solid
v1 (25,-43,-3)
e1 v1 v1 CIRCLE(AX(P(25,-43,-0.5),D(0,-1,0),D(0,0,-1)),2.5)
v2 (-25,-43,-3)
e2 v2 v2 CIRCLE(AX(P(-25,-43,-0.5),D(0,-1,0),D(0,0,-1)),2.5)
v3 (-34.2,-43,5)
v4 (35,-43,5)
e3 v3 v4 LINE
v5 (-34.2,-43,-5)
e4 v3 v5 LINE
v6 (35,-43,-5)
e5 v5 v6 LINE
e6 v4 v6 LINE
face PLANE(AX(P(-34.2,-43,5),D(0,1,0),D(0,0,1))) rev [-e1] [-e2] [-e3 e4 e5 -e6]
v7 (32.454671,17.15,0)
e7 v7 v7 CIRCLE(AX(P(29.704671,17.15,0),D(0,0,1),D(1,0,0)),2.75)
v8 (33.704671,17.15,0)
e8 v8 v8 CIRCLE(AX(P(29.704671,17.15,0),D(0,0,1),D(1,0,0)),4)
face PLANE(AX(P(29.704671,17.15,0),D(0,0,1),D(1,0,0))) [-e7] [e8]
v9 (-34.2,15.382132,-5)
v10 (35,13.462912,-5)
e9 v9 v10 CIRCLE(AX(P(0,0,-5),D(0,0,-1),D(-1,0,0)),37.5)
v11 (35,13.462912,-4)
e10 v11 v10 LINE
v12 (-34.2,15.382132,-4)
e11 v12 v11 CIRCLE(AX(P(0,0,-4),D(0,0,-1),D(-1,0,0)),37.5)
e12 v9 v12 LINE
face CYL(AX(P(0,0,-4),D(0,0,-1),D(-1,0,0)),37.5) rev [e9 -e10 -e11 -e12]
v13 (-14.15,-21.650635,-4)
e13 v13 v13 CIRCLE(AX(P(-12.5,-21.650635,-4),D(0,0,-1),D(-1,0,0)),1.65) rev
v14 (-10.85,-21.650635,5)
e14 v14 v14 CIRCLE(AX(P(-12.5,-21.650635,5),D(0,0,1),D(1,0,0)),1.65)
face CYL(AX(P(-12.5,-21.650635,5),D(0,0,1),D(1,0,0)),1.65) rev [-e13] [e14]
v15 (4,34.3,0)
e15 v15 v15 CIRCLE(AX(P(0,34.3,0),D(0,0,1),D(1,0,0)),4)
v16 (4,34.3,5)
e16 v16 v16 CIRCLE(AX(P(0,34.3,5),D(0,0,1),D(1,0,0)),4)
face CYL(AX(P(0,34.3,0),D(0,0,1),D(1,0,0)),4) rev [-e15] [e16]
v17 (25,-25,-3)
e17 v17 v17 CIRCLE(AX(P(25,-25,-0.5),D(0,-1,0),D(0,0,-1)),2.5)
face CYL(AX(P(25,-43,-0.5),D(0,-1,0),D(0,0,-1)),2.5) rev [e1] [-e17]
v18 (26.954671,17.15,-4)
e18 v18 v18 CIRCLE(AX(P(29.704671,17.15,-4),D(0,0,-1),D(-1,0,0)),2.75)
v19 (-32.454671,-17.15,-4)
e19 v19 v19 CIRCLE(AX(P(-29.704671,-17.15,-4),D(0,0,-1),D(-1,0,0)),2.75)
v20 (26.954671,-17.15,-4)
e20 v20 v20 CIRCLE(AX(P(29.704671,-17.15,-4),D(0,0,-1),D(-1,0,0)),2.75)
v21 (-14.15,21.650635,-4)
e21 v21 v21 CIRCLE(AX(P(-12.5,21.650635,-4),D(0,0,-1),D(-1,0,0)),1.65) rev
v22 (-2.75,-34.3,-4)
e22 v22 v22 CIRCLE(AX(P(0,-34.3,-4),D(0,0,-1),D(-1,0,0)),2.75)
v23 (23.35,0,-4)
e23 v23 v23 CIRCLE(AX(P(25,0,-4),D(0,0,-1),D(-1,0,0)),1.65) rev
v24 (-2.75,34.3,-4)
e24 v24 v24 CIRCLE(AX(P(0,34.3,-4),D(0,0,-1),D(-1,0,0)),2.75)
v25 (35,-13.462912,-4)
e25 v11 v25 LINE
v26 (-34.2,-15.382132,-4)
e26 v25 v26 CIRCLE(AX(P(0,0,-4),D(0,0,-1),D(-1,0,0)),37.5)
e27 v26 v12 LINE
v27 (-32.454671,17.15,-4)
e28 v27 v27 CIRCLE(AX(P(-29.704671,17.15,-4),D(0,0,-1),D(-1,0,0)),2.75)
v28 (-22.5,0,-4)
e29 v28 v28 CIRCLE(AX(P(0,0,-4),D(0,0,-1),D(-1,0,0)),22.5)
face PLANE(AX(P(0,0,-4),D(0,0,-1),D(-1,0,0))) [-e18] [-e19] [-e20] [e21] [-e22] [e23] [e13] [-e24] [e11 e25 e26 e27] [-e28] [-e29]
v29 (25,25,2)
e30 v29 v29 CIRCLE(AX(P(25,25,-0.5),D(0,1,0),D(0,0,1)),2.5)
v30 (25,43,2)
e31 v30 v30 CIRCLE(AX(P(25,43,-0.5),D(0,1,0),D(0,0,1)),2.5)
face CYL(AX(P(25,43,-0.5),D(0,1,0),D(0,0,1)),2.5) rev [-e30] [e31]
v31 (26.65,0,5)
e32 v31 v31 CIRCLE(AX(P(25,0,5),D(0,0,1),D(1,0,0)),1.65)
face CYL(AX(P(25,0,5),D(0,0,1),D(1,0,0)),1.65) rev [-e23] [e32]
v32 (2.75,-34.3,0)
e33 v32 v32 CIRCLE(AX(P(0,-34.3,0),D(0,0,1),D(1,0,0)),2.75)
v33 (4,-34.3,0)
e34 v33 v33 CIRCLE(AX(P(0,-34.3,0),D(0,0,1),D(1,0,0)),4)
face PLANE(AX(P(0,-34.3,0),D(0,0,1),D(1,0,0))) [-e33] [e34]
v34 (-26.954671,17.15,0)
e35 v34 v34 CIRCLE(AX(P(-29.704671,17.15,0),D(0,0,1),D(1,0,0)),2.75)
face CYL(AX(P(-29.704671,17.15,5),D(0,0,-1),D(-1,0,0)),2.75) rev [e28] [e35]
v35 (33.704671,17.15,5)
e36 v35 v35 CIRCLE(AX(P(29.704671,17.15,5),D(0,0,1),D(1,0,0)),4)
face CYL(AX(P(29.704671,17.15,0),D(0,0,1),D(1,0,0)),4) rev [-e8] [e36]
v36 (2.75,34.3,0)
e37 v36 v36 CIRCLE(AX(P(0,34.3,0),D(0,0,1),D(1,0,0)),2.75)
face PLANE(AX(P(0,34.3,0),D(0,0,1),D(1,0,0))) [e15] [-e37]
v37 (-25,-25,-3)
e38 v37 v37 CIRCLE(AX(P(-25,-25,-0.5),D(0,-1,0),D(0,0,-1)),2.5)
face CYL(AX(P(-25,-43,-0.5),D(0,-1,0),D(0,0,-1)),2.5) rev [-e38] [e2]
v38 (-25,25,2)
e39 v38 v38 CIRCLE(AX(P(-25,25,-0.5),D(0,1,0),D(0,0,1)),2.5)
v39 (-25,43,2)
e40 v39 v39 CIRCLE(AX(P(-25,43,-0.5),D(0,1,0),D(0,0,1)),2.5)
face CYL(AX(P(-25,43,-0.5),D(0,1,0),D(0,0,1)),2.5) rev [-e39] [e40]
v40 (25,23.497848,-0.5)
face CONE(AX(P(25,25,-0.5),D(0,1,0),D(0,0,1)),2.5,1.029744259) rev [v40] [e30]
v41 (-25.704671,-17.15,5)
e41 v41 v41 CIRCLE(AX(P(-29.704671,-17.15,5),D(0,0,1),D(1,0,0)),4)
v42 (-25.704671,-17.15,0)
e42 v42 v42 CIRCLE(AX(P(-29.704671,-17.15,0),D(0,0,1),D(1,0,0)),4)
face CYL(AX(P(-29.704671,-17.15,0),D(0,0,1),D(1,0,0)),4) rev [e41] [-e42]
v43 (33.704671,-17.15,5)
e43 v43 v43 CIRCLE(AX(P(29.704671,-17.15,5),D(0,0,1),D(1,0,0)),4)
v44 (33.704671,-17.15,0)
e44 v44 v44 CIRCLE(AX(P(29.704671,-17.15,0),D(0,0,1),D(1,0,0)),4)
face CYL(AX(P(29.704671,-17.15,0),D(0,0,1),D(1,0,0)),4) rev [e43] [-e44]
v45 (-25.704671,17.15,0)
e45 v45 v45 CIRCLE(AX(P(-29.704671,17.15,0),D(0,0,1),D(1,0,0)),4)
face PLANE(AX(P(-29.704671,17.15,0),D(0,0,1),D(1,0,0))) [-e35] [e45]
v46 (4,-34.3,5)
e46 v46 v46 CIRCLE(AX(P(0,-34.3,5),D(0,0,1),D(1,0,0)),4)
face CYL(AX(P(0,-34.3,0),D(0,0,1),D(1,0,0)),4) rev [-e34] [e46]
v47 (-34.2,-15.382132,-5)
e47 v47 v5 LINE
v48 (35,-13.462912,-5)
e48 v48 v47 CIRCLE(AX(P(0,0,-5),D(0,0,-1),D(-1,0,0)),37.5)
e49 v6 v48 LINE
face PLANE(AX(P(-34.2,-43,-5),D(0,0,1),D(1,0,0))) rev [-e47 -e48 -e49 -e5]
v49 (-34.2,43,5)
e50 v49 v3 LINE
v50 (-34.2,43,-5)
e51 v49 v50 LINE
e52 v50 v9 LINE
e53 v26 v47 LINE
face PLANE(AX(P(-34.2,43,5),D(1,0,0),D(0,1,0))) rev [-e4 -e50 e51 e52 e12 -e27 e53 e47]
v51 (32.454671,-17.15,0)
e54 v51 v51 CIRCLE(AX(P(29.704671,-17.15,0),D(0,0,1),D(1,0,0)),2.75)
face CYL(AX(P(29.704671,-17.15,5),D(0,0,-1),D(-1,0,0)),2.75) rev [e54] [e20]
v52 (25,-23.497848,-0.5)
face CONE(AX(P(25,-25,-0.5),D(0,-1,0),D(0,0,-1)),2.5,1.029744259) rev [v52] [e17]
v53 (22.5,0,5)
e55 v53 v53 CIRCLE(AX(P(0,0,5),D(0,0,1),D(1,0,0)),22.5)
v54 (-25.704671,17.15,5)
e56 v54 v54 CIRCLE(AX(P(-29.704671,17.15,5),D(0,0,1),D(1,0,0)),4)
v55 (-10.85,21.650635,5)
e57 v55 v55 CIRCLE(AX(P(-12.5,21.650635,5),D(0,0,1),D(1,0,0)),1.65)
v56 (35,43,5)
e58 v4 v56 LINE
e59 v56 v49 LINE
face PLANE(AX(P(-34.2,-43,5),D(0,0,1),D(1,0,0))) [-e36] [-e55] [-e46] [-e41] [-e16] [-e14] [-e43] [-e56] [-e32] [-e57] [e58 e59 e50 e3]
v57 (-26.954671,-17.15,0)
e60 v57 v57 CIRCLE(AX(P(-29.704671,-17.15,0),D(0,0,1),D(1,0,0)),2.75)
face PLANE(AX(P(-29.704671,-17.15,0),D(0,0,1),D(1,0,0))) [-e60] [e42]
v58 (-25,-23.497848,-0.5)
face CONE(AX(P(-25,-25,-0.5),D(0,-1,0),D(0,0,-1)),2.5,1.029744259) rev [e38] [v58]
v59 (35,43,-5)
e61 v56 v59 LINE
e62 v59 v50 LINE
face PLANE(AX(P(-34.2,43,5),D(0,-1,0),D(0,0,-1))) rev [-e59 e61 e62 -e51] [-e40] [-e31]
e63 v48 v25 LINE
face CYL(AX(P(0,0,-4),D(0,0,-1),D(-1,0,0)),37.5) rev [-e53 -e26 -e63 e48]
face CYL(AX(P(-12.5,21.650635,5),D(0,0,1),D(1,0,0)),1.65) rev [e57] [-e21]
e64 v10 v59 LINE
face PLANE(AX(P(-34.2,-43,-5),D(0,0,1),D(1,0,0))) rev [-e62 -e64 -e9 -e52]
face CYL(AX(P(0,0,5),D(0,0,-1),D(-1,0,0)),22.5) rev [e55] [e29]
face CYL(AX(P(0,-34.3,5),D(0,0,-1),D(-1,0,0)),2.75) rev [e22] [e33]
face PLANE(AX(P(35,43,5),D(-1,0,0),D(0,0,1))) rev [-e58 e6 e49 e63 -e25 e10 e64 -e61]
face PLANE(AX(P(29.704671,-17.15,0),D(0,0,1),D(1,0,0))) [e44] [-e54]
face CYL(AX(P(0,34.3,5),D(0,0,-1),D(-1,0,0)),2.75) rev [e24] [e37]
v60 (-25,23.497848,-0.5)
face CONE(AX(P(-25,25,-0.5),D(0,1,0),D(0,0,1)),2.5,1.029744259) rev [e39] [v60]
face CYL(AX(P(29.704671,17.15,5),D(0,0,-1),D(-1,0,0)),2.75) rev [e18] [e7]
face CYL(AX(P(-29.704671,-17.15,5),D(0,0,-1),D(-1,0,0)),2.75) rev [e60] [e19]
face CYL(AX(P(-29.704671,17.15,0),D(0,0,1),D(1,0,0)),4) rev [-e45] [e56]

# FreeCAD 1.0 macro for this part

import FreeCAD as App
import Part
import Sketcher

doc = App.newDocument("Part")
params = doc.addObject("Spreadsheet::Sheet", "Params")
for row, (alias, value) in enumerate([
    ("sketch1_diameter", "45 mm"),
    ("sketch1_diameter2", "5.5 mm"),
    ("sketch1_height", "86 mm"),
    ("sketch1_width", "69.2 mm"),
    ("pad1_length", "10 mm"),
    ("sketch2_diameter", "8 mm"),
    ("pocket1_length", "5 mm"),
    ("sketch3_diameter", "3.3 mm"),
    ("hole_diameter", "3.3 mm"),
    ("sketch4_diameter", "5 mm"),
    ("hole2_diameter", "5 mm"),
    ("hole2_depth", "18 mm"),
    ("sketch5_diameter", "5 mm"),
    ("hole3_diameter", "5 mm"),
    ("hole3_depth", "18 mm"),
    ("sketch6_diameter", "75 mm"),
    ("pocket2_length", "1 mm"),
], start=1):
    params.set(f"A{row}", alias)
    params.set(f"B{row}", "=" + value)
    params.setAlias(f"B{row}", alias)

body = doc.addObject("PartDesign::Body", "Body")

sketch1 = body.newObject("Sketcher::SketchObject", "Sketch")
sketch1.AttachmentSupport = (doc.getObject("XY_Plane"), [""])
sketch1.MapMode = "FlatFace"
sketch1.addGeometry([
    Part.LineSegment(App.Vector(-34.2, 43, 0), App.Vector(-34.2, -43, 0)),
    Part.LineSegment(App.Vector(-34.2, -43, 0), App.Vector(35, -43, 0)),
    Part.LineSegment(App.Vector(35, -43, 0), App.Vector(35, 43, 0)),
    Part.LineSegment(App.Vector(35, 43, 0), App.Vector(-34.2, 43, 0)),
    Part.Circle(App.Vector(-29.7, -17.1, 0), App.Vector(0, 0, 1), 2.8),
    Part.Circle(App.Vector(0, -34.3, 0), App.Vector(0, 0, 1), 2.8),
    Part.Circle(App.Vector(29.7, -17.1, 0), App.Vector(0, 0, 1), 2.8),
    Part.Circle(App.Vector(-29.7, 17.1, 0), App.Vector(0, 0, 1), 2.8),
    Part.Circle(App.Vector(0, 0, 0), App.Vector(0, 0, 1), 22.5),
    Part.Circle(App.Vector(29.7, 17.1, 0), App.Vector(0, 0, 1), 2.8),
    Part.Circle(App.Vector(0, 34.3, 0), App.Vector(0, 0, 1), 2.8),
], False)
sketch1.addConstraint([
    Sketcher.Constraint("Coincident", 0, 2, 1, 1),
    Sketcher.Constraint("Coincident", 1, 2, 2, 1),
    Sketcher.Constraint("Coincident", 2, 2, 3, 1),
    Sketcher.Constraint("Coincident", 3, 2, 0, 1),
    Sketcher.Constraint("Vertical", 0),
    Sketcher.Constraint("Horizontal", 1),
    Sketcher.Constraint("Vertical", 2),
    Sketcher.Constraint("Horizontal", 3),
    Sketcher.Constraint("Coincident", 8, 3, -1, 1),
    Sketcher.Constraint("Equal", 4, 5),
    Sketcher.Constraint("Equal", 5, 6),
    Sketcher.Constraint("Equal", 6, 7),
    Sketcher.Constraint("Equal", 7, 9),
    Sketcher.Constraint("Equal", 9, 10),
    Sketcher.Constraint("Symmetric", 6, 3, 7, 3, -1, 1),
    Sketcher.Constraint("Symmetric", 4, 3, 9, 3, -1, 1),
    Sketcher.Constraint("Symmetric", 5, 3, 10, 3, -1, 1),
    Sketcher.Constraint("Symmetric", 4, 3, 6, 3, -2),
    Sketcher.Constraint("PointOnObject", 5, 3, -2),
    Sketcher.Constraint("Diameter", 8, 45.0),
    Sketcher.Constraint("Diameter", 4, 5.5),
    Sketcher.Constraint("DistanceY", 0, 2, 0, 1, 86.0),
    Sketcher.Constraint("DistanceX", 1, 1, 1, 2, 69.2),
    Sketcher.Constraint("DistanceY", 0, 2, -1, 1, 43.0),
    Sketcher.Constraint("DistanceX", -1, 1, 1, 2, 35.0),
    Sketcher.Constraint("DistanceY", 5, 3, -1, 1, 34.3),
    Sketcher.Constraint("DistanceY", 4, 3, 7, 3, 34.3),
    Sketcher.Constraint("DistanceX", 4, 3, -1, 1, 29.704671),
])
sketch1.setExpression("Constraints[19]", "Params.sketch1_diameter")
sketch1.setExpression("Constraints[20]", "Params.sketch1_diameter2")
sketch1.setExpression("Constraints[21]", "Params.sketch1_height")
sketch1.setExpression("Constraints[22]", "Params.sketch1_width")
pad1 = body.newObject("PartDesign::Pad", "Pad")
pad1.Profile = sketch1
pad1.setExpression("Length", "Params.pad1_length")
pad1.Midplane = True

sketch2 = body.newObject("Sketcher::SketchObject", "Sketch001")
sketch2.AttachmentSupport = (doc.getObject("XY_Plane"), [""])
sketch2.MapMode = "FlatFace"
sketch2.AttachmentOffset = App.Placement(App.Vector(0, 0, 5), App.Rotation())
sketch2.addGeometry([
    Part.Circle(App.Vector(-29.7, 17.1, 0), App.Vector(0, 0, 1), 4),
    Part.Circle(App.Vector(0, 34.3, 0), App.Vector(0, 0, 1), 4),
    Part.Circle(App.Vector(29.7, 17.1, 0), App.Vector(0, 0, 1), 4),
    Part.Circle(App.Vector(29.7, -17.1, 0), App.Vector(0, 0, 1), 4),
    Part.Circle(App.Vector(0, -34.3, 0), App.Vector(0, 0, 1), 4),
    Part.Circle(App.Vector(-29.7, -17.1, 0), App.Vector(0, 0, 1), 4),
], False)
sketch2.addConstraint([
    Sketcher.Constraint("Equal", 0, 1),
    Sketcher.Constraint("Equal", 1, 2),
    Sketcher.Constraint("Equal", 2, 3),
    Sketcher.Constraint("Equal", 3, 4),
    Sketcher.Constraint("Equal", 4, 5),
    Sketcher.Constraint("Symmetric", 0, 3, 3, 3, -1, 1),
    Sketcher.Constraint("Symmetric", 1, 3, 4, 3, -1, 1),
    Sketcher.Constraint("Symmetric", 2, 3, 5, 3, -1, 1),
    Sketcher.Constraint("Symmetric", 0, 3, 2, 3, -2),
    Sketcher.Constraint("PointOnObject", 1, 3, -2),
    Sketcher.Constraint("Diameter", 0, 8.0),
    Sketcher.Constraint("DistanceY", -1, 1, 1, 3, 34.3),
    Sketcher.Constraint("DistanceY", 3, 3, 2, 3, 34.3),
    Sketcher.Constraint("DistanceX", 0, 3, -1, 1, 29.704671),
])
sketch2.setExpression("Constraints[10]", "Params.sketch2_diameter")
pocket1 = body.newObject("PartDesign::Pocket", "Pocket")
pocket1.Profile = sketch2
pocket1.setExpression("Length", "Params.pocket1_length")

sketch3 = body.newObject("Sketcher::SketchObject", "Sketch002")
sketch3.AttachmentSupport = (doc.getObject("XY_Plane"), [""])
sketch3.MapMode = "FlatFace"
sketch3.AttachmentOffset = App.Placement(App.Vector(0, 0, 5), App.Rotation())
sketch3.addGeometry([
    Part.Circle(App.Vector(-12.5, 21.7, 0), App.Vector(0, 0, 1), 1.6),
    Part.Circle(App.Vector(-12.5, -21.7, 0), App.Vector(0, 0, 1), 1.6),
    Part.Circle(App.Vector(25, 0, 0), App.Vector(0, 0, 1), 1.6),
], False)
sketch3.addConstraint([
    Sketcher.Constraint("Equal", 0, 1),
    Sketcher.Constraint("Equal", 1, 2),
    Sketcher.Constraint("Symmetric", 0, 3, 1, 3, -1),
    Sketcher.Constraint("PointOnObject", 2, 3, -1),
    Sketcher.Constraint("Diameter", 0, 3.3),
    Sketcher.Constraint("DistanceX", -1, 1, 2, 3, 25.0),
    Sketcher.Constraint("DistanceX", 0, 3, -1, 1, 12.5),
    Sketcher.Constraint("DistanceY", 1, 3, 0, 3, 43.30127),
])
sketch3.setExpression("Constraints[4]", "Params.sketch3_diameter")
doc.recompute()
hole = body.newObject("PartDesign::Hole", "Hole")
hole.Profile = sketch3
hole.ThreadType = "None"
hole.setExpression("Diameter", "Params.hole_diameter")
hole.DepthType = "ThroughAll"

sketch4 = body.newObject("Sketcher::SketchObject", "Sketch003")
sketch4.AttachmentSupport = (doc.getObject("XZ_Plane"), [""])
sketch4.MapMode = "FlatFace"
sketch4.AttachmentOffset = App.Placement(App.Vector(0, 0, -43), App.Rotation())
sketch4.addGeometry([
    Part.Circle(App.Vector(-25, -0.5, 0), App.Vector(0, 0, 1), 2.5),
    Part.Circle(App.Vector(25, -0.5, 0), App.Vector(0, 0, 1), 2.5),
], False)
sketch4.addConstraint([
    Sketcher.Constraint("Equal", 0, 1),
    Sketcher.Constraint("Symmetric", 0, 3, 1, 3, -2),
    Sketcher.Constraint("Diameter", 0, 5.0),
    Sketcher.Constraint("DistanceX", 0, 3, -1, 1, 25.0),
    Sketcher.Constraint("DistanceY", 0, 3, -1, 1, 0.5),
])
sketch4.setExpression("Constraints[2]", "Params.sketch4_diameter")
doc.recompute()
hole2 = body.newObject("PartDesign::Hole", "Hole001")
hole2.Profile = sketch4
hole2.ThreadType = "None"
hole2.setExpression("Diameter", "Params.hole2_diameter")
hole2.DepthType = "Dimension"
hole2.setExpression("Depth", "Params.hole2_depth")
hole2.DrillPoint = "Angled"
hole2.DrillPointAngle = 118
hole2.Reversed = True

sketch5 = body.newObject("Sketcher::SketchObject", "Sketch004")
sketch5.AttachmentSupport = (doc.getObject("XZ_Plane"), [""])
sketch5.MapMode = "FlatFace"
sketch5.AttachmentOffset = App.Placement(App.Vector(0, 0, 43), App.Rotation())
sketch5.addGeometry([
    Part.Circle(App.Vector(-25, -0.5, 0), App.Vector(0, 0, 1), 2.5),
    Part.Circle(App.Vector(25, -0.5, 0), App.Vector(0, 0, 1), 2.5),
], False)
sketch5.addConstraint([
    Sketcher.Constraint("Equal", 0, 1),
    Sketcher.Constraint("Symmetric", 0, 3, 1, 3, -2),
    Sketcher.Constraint("Diameter", 0, 5.0),
    Sketcher.Constraint("DistanceX", 0, 3, -1, 1, 25.0),
    Sketcher.Constraint("DistanceY", 0, 3, -1, 1, 0.5),
])
sketch5.setExpression("Constraints[2]", "Params.sketch5_diameter")
doc.recompute()
hole3 = body.newObject("PartDesign::Hole", "Hole002")
hole3.Profile = sketch5
hole3.ThreadType = "None"
hole3.setExpression("Diameter", "Params.hole3_diameter")
hole3.DepthType = "Dimension"
hole3.setExpression("Depth", "Params.hole3_depth")
hole3.DrillPoint = "Angled"
hole3.DrillPointAngle = 118

sketch6 = body.newObject("Sketcher::SketchObject", "Sketch005")
sketch6.AttachmentSupport = (doc.getObject("XY_Plane"), [""])
sketch6.MapMode = "FlatFace"
sketch6.AttachmentOffset = App.Placement(App.Vector(0, 0, -5), App.Rotation())
sketch6.addGeometry(Part.Circle(App.Vector(0, 0, 0), App.Vector(0, 0, 1), 38), False)
sketch6.addConstraint([
    Sketcher.Constraint("Coincident", 0, 3, -1, 1),
    Sketcher.Constraint("Diameter", 0, 75.0),
])
sketch6.setExpression("Constraints[1]", "Params.sketch6_diameter")
pocket2 = body.newObject("PartDesign::Pocket", "Pocket001")
pocket2.Profile = sketch6
pocket2.setExpression("Length", "Params.pocket2_length")
pocket2.Reversed = True

doc.recompute()
